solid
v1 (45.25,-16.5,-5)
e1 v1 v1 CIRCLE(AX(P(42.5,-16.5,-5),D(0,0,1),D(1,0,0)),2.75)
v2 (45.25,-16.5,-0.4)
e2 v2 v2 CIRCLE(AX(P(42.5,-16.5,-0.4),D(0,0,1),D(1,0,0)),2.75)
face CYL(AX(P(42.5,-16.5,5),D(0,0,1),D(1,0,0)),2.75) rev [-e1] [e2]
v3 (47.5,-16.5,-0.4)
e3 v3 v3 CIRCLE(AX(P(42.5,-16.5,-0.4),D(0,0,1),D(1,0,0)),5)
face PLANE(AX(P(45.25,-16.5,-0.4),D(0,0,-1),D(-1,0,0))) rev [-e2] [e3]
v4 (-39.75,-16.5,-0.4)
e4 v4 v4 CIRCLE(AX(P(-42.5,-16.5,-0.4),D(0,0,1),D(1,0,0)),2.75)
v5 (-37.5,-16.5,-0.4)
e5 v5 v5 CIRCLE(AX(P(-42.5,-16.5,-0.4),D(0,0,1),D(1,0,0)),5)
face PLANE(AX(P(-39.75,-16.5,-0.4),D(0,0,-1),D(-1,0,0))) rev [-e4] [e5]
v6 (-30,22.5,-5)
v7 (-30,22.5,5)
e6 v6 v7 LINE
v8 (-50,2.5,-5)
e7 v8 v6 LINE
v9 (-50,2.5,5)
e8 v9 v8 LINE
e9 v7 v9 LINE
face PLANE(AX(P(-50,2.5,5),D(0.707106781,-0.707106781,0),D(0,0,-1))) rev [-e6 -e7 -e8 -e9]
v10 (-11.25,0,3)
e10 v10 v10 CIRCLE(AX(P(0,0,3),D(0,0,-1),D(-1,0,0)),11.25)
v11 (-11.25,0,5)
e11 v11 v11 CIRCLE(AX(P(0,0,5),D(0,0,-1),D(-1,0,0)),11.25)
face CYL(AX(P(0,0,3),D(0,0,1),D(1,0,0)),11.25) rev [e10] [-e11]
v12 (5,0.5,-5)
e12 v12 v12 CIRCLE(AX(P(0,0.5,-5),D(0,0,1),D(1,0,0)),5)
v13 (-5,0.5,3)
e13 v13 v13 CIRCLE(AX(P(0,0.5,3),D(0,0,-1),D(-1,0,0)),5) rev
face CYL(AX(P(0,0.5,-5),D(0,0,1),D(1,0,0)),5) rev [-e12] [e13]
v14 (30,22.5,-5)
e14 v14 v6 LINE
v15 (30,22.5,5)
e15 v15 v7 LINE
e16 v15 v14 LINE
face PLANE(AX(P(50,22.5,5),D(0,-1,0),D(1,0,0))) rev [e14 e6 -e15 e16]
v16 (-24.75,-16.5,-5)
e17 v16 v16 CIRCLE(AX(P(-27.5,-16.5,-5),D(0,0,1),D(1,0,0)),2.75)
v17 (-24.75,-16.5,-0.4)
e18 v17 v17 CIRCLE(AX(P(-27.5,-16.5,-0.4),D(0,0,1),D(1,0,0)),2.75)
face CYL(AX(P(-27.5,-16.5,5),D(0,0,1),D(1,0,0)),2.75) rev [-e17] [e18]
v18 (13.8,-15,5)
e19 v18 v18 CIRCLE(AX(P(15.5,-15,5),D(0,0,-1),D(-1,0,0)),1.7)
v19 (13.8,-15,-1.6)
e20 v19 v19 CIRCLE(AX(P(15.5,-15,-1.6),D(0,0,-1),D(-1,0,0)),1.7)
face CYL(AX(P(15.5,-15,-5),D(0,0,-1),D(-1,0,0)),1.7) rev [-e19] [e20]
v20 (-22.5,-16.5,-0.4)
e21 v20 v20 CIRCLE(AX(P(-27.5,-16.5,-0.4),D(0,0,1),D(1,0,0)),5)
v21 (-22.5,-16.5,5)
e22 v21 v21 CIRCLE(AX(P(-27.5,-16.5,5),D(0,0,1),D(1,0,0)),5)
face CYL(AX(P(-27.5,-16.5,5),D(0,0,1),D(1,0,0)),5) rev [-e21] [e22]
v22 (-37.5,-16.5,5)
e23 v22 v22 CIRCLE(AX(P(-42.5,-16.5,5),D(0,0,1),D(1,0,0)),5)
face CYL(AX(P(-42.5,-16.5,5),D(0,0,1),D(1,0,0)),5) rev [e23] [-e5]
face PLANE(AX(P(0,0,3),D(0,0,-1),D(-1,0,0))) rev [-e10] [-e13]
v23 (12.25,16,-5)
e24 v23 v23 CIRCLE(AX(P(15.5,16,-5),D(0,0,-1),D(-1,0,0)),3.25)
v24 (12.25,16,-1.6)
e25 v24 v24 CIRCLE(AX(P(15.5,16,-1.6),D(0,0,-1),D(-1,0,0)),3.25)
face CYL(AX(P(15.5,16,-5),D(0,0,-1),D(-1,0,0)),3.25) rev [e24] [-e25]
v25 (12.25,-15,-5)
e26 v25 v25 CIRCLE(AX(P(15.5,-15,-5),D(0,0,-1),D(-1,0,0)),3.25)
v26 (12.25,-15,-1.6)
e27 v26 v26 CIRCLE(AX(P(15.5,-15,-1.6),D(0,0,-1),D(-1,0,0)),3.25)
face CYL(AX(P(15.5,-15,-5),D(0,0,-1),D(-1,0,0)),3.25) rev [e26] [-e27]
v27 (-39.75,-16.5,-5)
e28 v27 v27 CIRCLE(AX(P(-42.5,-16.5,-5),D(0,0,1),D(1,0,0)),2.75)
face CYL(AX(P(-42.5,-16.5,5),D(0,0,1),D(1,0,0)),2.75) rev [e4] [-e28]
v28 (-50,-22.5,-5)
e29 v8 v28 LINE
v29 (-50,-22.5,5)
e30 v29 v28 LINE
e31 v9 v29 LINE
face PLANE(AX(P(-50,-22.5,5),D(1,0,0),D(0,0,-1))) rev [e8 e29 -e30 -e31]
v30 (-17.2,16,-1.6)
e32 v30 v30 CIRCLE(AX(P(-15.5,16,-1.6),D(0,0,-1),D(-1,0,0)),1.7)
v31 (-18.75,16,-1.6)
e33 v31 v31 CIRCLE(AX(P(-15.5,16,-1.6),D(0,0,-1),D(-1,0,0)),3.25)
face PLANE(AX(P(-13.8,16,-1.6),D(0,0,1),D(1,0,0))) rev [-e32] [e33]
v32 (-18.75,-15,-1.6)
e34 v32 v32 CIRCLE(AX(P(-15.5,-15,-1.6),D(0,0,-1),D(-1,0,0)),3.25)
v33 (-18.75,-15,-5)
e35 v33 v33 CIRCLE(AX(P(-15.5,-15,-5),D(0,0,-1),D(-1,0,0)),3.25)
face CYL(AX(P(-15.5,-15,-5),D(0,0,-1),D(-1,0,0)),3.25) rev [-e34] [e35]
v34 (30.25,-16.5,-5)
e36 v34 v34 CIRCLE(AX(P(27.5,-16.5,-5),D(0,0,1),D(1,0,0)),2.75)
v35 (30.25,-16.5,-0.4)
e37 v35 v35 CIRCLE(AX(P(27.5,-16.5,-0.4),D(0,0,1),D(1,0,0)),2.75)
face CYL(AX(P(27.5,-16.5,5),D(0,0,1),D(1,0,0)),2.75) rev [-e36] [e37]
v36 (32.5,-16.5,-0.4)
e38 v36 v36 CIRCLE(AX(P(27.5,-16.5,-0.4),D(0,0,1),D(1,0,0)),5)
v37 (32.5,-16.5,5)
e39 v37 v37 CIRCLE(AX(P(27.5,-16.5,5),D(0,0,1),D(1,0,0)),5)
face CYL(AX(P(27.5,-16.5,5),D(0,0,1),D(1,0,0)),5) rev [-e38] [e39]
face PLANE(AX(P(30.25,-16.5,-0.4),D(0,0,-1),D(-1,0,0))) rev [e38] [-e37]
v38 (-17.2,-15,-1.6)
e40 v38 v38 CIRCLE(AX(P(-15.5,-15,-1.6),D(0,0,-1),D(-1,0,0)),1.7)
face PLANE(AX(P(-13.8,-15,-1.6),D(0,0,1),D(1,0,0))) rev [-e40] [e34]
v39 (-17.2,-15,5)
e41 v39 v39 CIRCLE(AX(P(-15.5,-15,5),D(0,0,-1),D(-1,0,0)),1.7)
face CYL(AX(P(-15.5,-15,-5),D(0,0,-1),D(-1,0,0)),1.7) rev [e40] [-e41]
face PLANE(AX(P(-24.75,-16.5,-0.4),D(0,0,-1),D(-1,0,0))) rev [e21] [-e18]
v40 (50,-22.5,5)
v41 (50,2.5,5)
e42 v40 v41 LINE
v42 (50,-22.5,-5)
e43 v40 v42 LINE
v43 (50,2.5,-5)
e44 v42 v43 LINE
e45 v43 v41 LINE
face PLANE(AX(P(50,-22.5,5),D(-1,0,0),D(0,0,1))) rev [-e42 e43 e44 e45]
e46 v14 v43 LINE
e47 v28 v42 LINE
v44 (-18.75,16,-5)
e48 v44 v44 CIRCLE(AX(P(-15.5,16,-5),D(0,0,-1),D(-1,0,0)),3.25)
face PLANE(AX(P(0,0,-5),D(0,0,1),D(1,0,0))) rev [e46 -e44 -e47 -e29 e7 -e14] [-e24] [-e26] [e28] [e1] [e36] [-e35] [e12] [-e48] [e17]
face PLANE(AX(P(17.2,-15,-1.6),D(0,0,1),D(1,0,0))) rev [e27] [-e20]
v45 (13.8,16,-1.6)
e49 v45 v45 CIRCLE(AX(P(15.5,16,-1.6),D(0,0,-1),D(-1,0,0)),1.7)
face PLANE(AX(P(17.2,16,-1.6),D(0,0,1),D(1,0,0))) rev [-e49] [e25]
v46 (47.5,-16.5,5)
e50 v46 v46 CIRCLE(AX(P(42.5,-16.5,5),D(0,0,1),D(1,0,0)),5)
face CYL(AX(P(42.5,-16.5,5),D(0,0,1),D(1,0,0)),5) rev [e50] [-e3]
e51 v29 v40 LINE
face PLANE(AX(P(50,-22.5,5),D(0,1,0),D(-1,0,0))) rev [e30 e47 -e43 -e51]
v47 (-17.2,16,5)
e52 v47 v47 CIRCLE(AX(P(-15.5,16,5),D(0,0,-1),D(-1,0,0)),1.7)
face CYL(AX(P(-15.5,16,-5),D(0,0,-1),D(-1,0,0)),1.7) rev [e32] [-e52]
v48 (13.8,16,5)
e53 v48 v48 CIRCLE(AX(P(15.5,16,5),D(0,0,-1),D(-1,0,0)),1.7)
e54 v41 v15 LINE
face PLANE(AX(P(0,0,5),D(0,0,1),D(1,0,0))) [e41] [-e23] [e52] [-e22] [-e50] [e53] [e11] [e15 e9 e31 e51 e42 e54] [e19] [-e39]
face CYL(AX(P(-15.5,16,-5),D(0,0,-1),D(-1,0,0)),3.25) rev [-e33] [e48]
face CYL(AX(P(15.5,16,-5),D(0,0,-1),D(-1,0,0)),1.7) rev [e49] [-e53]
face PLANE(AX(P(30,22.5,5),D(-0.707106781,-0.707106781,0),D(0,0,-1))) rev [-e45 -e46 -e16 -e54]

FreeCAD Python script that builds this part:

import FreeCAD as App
import Part
import Sketcher


def edges_at(feature, points):
    """Names of the edges that pass closest to the given points."""
    edges = feature.Shape.Edges
    near = lambda p: min(range(len(edges)), key=lambda i: edges[i].distToShape(Part.Vertex(*p))[0])
    return sorted({f"Edge{near(p) + 1}" for p in points})


def add_polygon(sketch, points):
    """Adds a closed chain of lines whose ends are joined by coincident constraints."""
    first, n = sketch.GeometryCount, len(points)
    for a, b in zip(points, points[1:] + points[:1]):
        sketch.addGeometry(Part.LineSegment(App.Vector(*a, 0), App.Vector(*b, 0)), False)
    for i in range(n):
        sketch.addConstraint(Sketcher.Constraint("Coincident", first + i, 2, first + (i + 1) % n, 1))

doc = App.newDocument("Part")
body = doc.addObject("PartDesign::Body", "Body")

# Sketch on XY plane
sketch1 = body.newObject("Sketcher::SketchObject", "Sketch")
sketch1.AttachmentSupport = (doc.getObject("XY_Plane"), [""])
sketch1.MapMode = "FlatFace"
add_polygon(sketch1, [(-50, 22), (-50, -22), (50, -22), (50, 22)])  # lines 0-3
sketch1.addConstraint([
    Sketcher.Constraint("Vertical", 0),
    Sketcher.Constraint("Horizontal", 1),
    Sketcher.Constraint("Vertical", 2),
    Sketcher.Constraint("Horizontal", 3),
    Sketcher.Constraint("Symmetric", 0, 2, 2, 2, -1, 1),
    Sketcher.Constraint("DistanceX", 1, 1, 1, 2, 100.0),
    Sketcher.Constraint("DistanceY", 0, 2, 0, 1, 45.0),
])
pad1 = body.newObject("PartDesign::Pad", "Pad")
pad1.Profile = sketch1
pad1.Length = 10
pad1.Midplane = True
doc.recompute()

chamfer = body.newObject("PartDesign::Chamfer", "Chamfer")
chamfer.Base = (pad1, edges_at(pad1, [(-50, 22.5, 0), (50, 22.5, 0)]))
chamfer.Size = 20

# Sketch on XY plane
sketch2 = body.newObject("Sketcher::SketchObject", "Sketch001")
sketch2.AttachmentSupport = (doc.getObject("XY_Plane"), [""])
sketch2.MapMode = "FlatFace"
sketch2.AttachmentOffset = App.Placement(App.Vector(0, 0, 5), App.Rotation())
sketch2.addGeometry([
    Part.Circle(App.Vector(-42.5, -16.5, 0), App.Vector(0, 0, 1), 2.8),
    Part.Circle(App.Vector(-27.5, -16.5, 0), App.Vector(0, 0, 1), 2.8),
    Part.Circle(App.Vector(27.5, -16.5, 0), App.Vector(0, 0, 1), 2.8),
    Part.Circle(App.Vector(42.5, -16.5, 0), App.Vector(0, 0, 1), 2.8),
], False)
sketch2.addConstraint([
    Sketcher.Constraint("Equal", 0, 1),
    Sketcher.Constraint("Equal", 1, 2),
    Sketcher.Constraint("Equal", 2, 3),
    Sketcher.Constraint("Symmetric", 1, 3, 2, 3, -2),
    Sketcher.Constraint("Symmetric", 0, 3, 3, 3, -2),
    Sketcher.Constraint("Horizontal", 0, 3, 1, 3),
    Sketcher.Constraint("Diameter", 0, 5.5),
    Sketcher.Constraint("DistanceX", 0, 3, 1, 3, 15.0),
    Sketcher.Constraint("DistanceX", 1, 3, 2, 3, 55.0),
    Sketcher.Constraint("DistanceY", 0, 3, -1, 1, 16.5),
])
doc.recompute()
hole = body.newObject("PartDesign::Hole", "Hole")
hole.Profile = sketch2
hole.ThreadType = "None"
hole.Diameter = 5.5
hole.DepthType = "ThroughAll"
hole.HoleCutType = "Counterbore"
hole.HoleCutDiameter = 10
hole.HoleCutDepth = 5.4

# Sketch on XY plane
sketch3 = body.newObject("Sketcher::SketchObject", "Sketch002")
sketch3.AttachmentSupport = (doc.getObject("XY_Plane"), [""])
sketch3.MapMode = "FlatFace"
sketch3.AttachmentOffset = App.Placement(App.Vector(0, 0, -5), App.Rotation())
sketch3.addGeometry([
    Part.Circle(App.Vector(-15.5, 16, 0), App.Vector(0, 0, 1), 1.7),
    Part.Circle(App.Vector(15.5, 16, 0), App.Vector(0, 0, 1), 1.7),
    Part.Circle(App.Vector(15.5, -15, 0), App.Vector(0, 0, 1), 1.7),
    Part.Circle(App.Vector(-15.5, -15, 0), App.Vector(0, 0, 1), 1.7),
], False)
sketch3.addConstraint([
    Sketcher.Constraint("Equal", 0, 1),
    Sketcher.Constraint("Equal", 1, 2),
    Sketcher.Constraint("Equal", 2, 3),
    Sketcher.Constraint("Symmetric", 0, 3, 1, 3, -2),
    Sketcher.Constraint("Symmetric", 2, 3, 3, 3, -2),
    Sketcher.Constraint("Vertical", 1, 3, 2, 3),
    Sketcher.Constraint("Diameter", 0, 3.4),
    Sketcher.Constraint("DistanceY", -1, 1, 0, 3, 16.0),
    Sketcher.Constraint("DistanceY", 2, 3, -1, 1, 15.0),
    Sketcher.Constraint("DistanceX", 0, 3, 1, 3, 31.0),
])
doc.recompute()
hole2 = body.newObject("PartDesign::Hole", "Hole001")
hole2.Profile = sketch3
hole2.ThreadType = "None"
hole2.Diameter = 3.4
hole2.DepthType = "ThroughAll"
hole2.HoleCutType = "Counterbore"
hole2.HoleCutDiameter = 6.5
hole2.HoleCutDepth = 3.4
hole2.Reversed = True

# Sketch on XY plane
sketch4 = body.newObject("Sketcher::SketchObject", "Sketch003")
sketch4.AttachmentSupport = (doc.getObject("XY_Plane"), [""])
sketch4.MapMode = "FlatFace"
sketch4.AttachmentOffset = App.Placement(App.Vector(0, 0, 5), App.Rotation())
sketch4.addGeometry(Part.Circle(App.Vector(0, 0, 0), App.Vector(0, 0, 1), 5), False)
sketch4.addConstraint([
    Sketcher.Constraint("PointOnObject", 0, 3, -2),
    Sketcher.Constraint("Diameter", 0, 10.0),
    Sketcher.Constraint("DistanceY", -1, 1, 0, 3, 0.5),
])
pocket1 = body.newObject("PartDesign::Pocket", "Pocket")
pocket1.Profile = sketch4
pocket1.Length = 10

# Sketch on XY plane
sketch5 = body.newObject("Sketcher::SketchObject", "Sketch004")
sketch5.AttachmentSupport = (doc.getObject("XY_Plane"), [""])
sketch5.MapMode = "FlatFace"
sketch5.AttachmentOffset = App.Placement(App.Vector(0, 0, 5), App.Rotation())
sketch5.addGeometry(Part.Circle(App.Vector(0, 0, 0), App.Vector(0, 0, 1), 11), False)
sketch5.addConstraint([
    Sketcher.Constraint("Coincident", 0, 3, -1, 1),
    Sketcher.Constraint("Diameter", 0, 22.5),
])
pocket2 = body.newObject("PartDesign::Pocket", "Pocket001")
pocket2.Profile = sketch5
pocket2.Length = 2

doc.recompute()
